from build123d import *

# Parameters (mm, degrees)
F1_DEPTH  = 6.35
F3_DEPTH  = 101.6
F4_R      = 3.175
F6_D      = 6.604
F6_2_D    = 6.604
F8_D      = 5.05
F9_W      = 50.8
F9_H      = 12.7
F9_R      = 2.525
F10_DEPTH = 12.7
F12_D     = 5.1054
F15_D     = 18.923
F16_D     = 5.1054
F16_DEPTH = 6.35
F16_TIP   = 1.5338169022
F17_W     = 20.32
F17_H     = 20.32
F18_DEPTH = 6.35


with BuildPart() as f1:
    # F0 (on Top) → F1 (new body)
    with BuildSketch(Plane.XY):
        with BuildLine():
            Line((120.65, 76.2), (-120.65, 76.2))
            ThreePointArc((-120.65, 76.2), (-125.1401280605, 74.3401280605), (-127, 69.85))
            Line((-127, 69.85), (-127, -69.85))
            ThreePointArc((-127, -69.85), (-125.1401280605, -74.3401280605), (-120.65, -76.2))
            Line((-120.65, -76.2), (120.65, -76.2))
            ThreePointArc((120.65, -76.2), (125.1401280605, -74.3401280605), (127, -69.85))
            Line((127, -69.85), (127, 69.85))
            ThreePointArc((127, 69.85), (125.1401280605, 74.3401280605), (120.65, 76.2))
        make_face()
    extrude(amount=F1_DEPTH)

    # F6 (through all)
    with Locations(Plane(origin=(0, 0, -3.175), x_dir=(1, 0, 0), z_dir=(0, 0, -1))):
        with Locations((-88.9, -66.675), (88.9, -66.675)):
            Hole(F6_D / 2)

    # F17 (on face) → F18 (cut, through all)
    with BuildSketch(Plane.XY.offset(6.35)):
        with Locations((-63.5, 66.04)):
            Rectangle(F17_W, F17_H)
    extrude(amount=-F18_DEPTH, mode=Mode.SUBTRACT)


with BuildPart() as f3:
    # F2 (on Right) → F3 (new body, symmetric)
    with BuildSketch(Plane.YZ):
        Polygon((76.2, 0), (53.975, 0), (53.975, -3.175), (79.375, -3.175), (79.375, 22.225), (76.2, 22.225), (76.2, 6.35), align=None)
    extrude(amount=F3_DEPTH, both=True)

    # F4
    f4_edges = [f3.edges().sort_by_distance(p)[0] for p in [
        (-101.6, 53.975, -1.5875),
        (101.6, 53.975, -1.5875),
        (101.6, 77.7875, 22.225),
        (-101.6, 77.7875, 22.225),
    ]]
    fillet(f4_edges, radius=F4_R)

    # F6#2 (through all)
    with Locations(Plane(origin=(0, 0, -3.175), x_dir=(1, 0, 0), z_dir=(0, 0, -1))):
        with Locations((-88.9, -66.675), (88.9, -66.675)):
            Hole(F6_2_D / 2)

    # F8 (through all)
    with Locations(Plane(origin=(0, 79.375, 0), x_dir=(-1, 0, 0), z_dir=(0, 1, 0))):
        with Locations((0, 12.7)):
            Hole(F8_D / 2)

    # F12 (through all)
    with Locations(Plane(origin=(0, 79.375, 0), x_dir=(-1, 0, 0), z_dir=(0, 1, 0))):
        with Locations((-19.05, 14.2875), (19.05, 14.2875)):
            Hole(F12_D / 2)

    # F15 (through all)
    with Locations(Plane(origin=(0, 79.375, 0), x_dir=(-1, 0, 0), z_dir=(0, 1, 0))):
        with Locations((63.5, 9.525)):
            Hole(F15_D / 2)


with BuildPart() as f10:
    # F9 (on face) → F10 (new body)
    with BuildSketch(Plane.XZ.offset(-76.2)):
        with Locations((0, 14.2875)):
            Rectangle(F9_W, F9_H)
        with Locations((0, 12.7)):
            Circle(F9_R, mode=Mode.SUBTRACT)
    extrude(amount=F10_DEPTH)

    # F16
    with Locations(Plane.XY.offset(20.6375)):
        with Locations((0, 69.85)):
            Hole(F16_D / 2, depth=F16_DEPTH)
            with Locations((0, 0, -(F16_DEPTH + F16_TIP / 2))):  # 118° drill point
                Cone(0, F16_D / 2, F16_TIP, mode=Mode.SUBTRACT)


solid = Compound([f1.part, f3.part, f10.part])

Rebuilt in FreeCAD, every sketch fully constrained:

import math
import FreeCAD as App
import Part
import Sketcher
from FreeCAD import Vector
Q = App.Units.Quantity


def edges_at(feature, points):
    """Names of the edges that pass closest to the given points."""
    edges = feature.Shape.Edges
    near = lambda p: min(range(len(edges)), key=lambda i: edges[i].distToShape(Part.Vertex(*p))[0])
    return sorted({f"Edge{near(p) + 1}" for p in points})


def add_polygon(sketch, points):
    """Adds a closed chain of lines whose ends are joined by coincident constraints."""
    first, n = sketch.GeometryCount, len(points)
    for a, b in zip(points, points[1:] + points[:1]):
        sketch.addGeometry(Part.LineSegment(App.Vector(*a, 0), App.Vector(*b, 0)), False)
    for i in range(n):
        sketch.addConstraint(Sketcher.Constraint("Coincident", first + i, 2, first + (i + 1) % n, 1))

doc = App.newDocument("Part")
body = doc.addObject("PartDesign::Body", "Body")

# Sketch on XY plane
sketch1 = doc.addObject("Sketcher::SketchObject", "Sketch")
body.addObject(sketch1)
sketch1.AttachmentSupport = (doc.XY_Plane, [""])
sketch1.MapMode = "FlatFace"
sketch1.addGeometry(Part.LineSegment(Vector(120.65, 76.2, 0), Vector(-120.65, 76.2, 0)), False)
sketch1.addGeometry(Part.ArcOfCircle(Part.Circle(Vector(-120.65, 69.85, 0), Vector(0, 0, 1), 6.35), math.radians(90), math.radians(180)), False)
sketch1.addGeometry(Part.LineSegment(Vector(-127, 69.85, 0), Vector(-127, -69.85, 0)), False)
sketch1.addGeometry(Part.ArcOfCircle(Part.Circle(Vector(-120.65, -69.85, 0), Vector(0, 0, 1), 6.35), math.radians(180), math.radians(270)), False)
sketch1.addGeometry(Part.LineSegment(Vector(-120.65, -76.2, 0), Vector(120.65, -76.2, 0)), False)
sketch1.addGeometry(Part.ArcOfCircle(Part.Circle(Vector(120.65, -69.85, 0), Vector(0, 0, 1), 6.35), math.radians(-90), math.radians(0)), False)
sketch1.addGeometry(Part.LineSegment(Vector(127, -69.85, 0), Vector(127, 69.85, 0)), False)
sketch1.addGeometry(Part.ArcOfCircle(Part.Circle(Vector(120.65, 69.85, 0), Vector(0, 0, 1), 6.35), math.radians(0), math.radians(90)), False)
sketch1.addConstraint(Sketcher.Constraint("Tangent", 0, 2, 1, 1))
sketch1.addConstraint(Sketcher.Constraint("Tangent", 1, 2, 2, 1))
sketch1.addConstraint(Sketcher.Constraint("Tangent", 2, 2, 3, 1))
sketch1.addConstraint(Sketcher.Constraint("Tangent", 3, 2, 4, 1))
sketch1.addConstraint(Sketcher.Constraint("Tangent", 4, 2, 5, 1))
sketch1.addConstraint(Sketcher.Constraint("Tangent", 5, 2, 6, 1))
sketch1.addConstraint(Sketcher.Constraint("Tangent", 6, 2, 7, 1))
sketch1.addConstraint(Sketcher.Constraint("Tangent", 7, 2, 0, 1))
sketch1.addConstraint(Sketcher.Constraint("Horizontal", 0))
sketch1.addConstraint(Sketcher.Constraint("Vertical", 2))
sketch1.addConstraint(Sketcher.Constraint("Horizontal", 4))
sketch1.addConstraint(Sketcher.Constraint("Vertical", 6))
sketch1.addConstraint(Sketcher.Constraint("Equal", 1, 3))
sketch1.addConstraint(Sketcher.Constraint("Equal", 3, 5))
sketch1.addConstraint(Sketcher.Constraint("Equal", 5, 7))
sketch1.addConstraint(Sketcher.Constraint("Symmetric", 1, 3, 5, 3, -1, 1))
sketch1.addConstraint(Sketcher.Constraint("Radius", 1, Q("0.25 in")))
sketch1.addConstraint(Sketcher.Constraint("DistanceX", 0, 2, 0, 1, Q("9.5 in")))
sketch1.addConstraint(Sketcher.Constraint("DistanceY", 2, 2, 2, 1, Q("5.5 in")))
pad1 = doc.addObject("PartDesign::Pad", "Pad")
body.addObject(pad1)
pad1.Profile = sketch1
pad1.Length = Q("0.25 in")

# Sketch on XY plane
sketch2 = doc.addObject("Sketcher::SketchObject", "Sketch001")
body.addObject(sketch2)
sketch2.AttachmentSupport = (doc.XY_Plane, [""])
sketch2.MapMode = "FlatFace"
sketch2.AttachmentOffset = App.Placement(Vector(0, 0, -0.125 * 25.4), App.Rotation())
sketch2.addGeometry(Part.Circle(Vector(-88.9, 66.675, 0), Vector(0, 0, 1), 3.302), False)
sketch2.addGeometry(Part.Circle(Vector(88.9, 66.675, 0), Vector(0, 0, 1), 3.302), False)
sketch2.addConstraint(Sketcher.Constraint("Equal", 0, 1))
sketch2.addConstraint(Sketcher.Constraint("Symmetric", 0, 3, 1, 3, -2))
sketch2.addConstraint(Sketcher.Constraint("Diameter", 0, Q("0.26 in")))
sketch2.addConstraint(Sketcher.Constraint("DistanceX", 0, 3, 1, 3, Q("7 in")))
sketch2.addConstraint(Sketcher.Constraint("DistanceY", -1, 1, 0, 3, Q("2.625 in")))
doc.recompute()
hole = doc.addObject("PartDesign::Hole", "Hole")
body.addObject(hole)
hole.Profile = sketch2
hole.ThreadType = "None"
hole.Diameter = Q("0.26 in")
hole.DepthType = "ThroughAll"
hole.Reversed = True

# Sketch on XY plane
sketch3 = doc.addObject("Sketcher::SketchObject", "Sketch002")
body.addObject(sketch3)
sketch3.AttachmentSupport = (doc.XY_Plane, [""])
sketch3.MapMode = "FlatFace"
sketch3.AttachmentOffset = App.Placement(Vector(0, 0, 0.25 * 25.4), App.Rotation())
add_polygon(sketch3, [(-73.66, 76.2), (-73.66, 55.88), (-53.34, 55.88), (-53.34, 76.2)])  # lines 0-3
sketch3.addConstraint(Sketcher.Constraint("Vertical", 0))
sketch3.addConstraint(Sketcher.Constraint("Horizontal", 1))
sketch3.addConstraint(Sketcher.Constraint("Vertical", 2))
sketch3.addConstraint(Sketcher.Constraint("Horizontal", 3))
sketch3.addConstraint(Sketcher.Constraint("Equal", 3, 0))
sketch3.addConstraint(Sketcher.Constraint("DistanceX", 1, 1, 1, 2, Q("0.8 in")))
sketch3.addConstraint(Sketcher.Constraint("DistanceY", -1, 1, 2, 2, Q("3 in")))
sketch3.addConstraint(Sketcher.Constraint("DistanceX", 0, 2, -1, 1, Q("2.9 in")))
pocket1 = doc.addObject("PartDesign::Pocket", "Pocket")
body.addObject(pocket1)
pocket1.Profile = sketch3
pocket1.Type = "ThroughAll"
body2 = doc.addObject("PartDesign::Body", "Body001")

# Sketch on YZ plane
sketch4 = doc.addObject("Sketcher::SketchObject", "Sketch003")
body2.addObject(sketch4)
sketch4.AttachmentSupport = (doc.getObject("YZ_Plane001"), [""])
sketch4.MapMode = "FlatFace"
add_polygon(sketch4, [(76.2, 0), (53.975, 0), (53.975, -3.175), (79.375, -3.175), (79.375, 22.225), (76.2, 22.225)])  # lines 0-5
sketch4.addConstraint(Sketcher.Constraint("Horizontal", 0))
sketch4.addConstraint(Sketcher.Constraint("Vertical", 1))
sketch4.addConstraint(Sketcher.Constraint("Horizontal", 2))
sketch4.addConstraint(Sketcher.Constraint("Vertical", 3))
sketch4.addConstraint(Sketcher.Constraint("Horizontal", 4))
sketch4.addConstraint(Sketcher.Constraint("Vertical", 5))
sketch4.addConstraint(Sketcher.Constraint("PointOnObject", 0, 2, -1))
sketch4.addConstraint(Sketcher.Constraint("Equal", 4, 1))
sketch4.addConstraint(Sketcher.Constraint("Equal", 2, 3))
sketch4.addConstraint(Sketcher.Constraint("DistanceX", 2, 1, 2, 2, Q("1 in")))
sketch4.addConstraint(Sketcher.Constraint("DistanceX", -1, 1, 4, 2, Q("3 in")))
sketch4.addConstraint(Sketcher.Constraint("DistanceX", 0, 2, 0, 1, Q("0.875 in")))
pad2 = doc.addObject("PartDesign::Pad", "Pad001")
body2.addObject(pad2)
pad2.Profile = sketch4
pad2.Length = Q("8 in")
pad2.Midplane = True
doc.recompute()

fillet = doc.addObject("PartDesign::Fillet", "Fillet")
body2.addObject(fillet)
fillet.Base = (pad2, edges_at(pad2, [
    (-101.6, 53.975, -1.587),
    (101.6, 53.975, -1.587),
    (101.6, 77.787, 22.225),
    (-101.6, 77.787, 22.225),
]))
fillet.Radius = Q("0.125 in")

# Sketch on XY plane
sketch5 = doc.addObject("Sketcher::SketchObject", "Sketch004")
body2.addObject(sketch5)
sketch5.AttachmentSupport = (doc.getObject("XY_Plane001"), [""])
sketch5.MapMode = "FlatFace"
sketch5.AttachmentOffset = App.Placement(Vector(0, 0, -0.125 * 25.4), App.Rotation())
sketch5.addGeometry(Part.Circle(Vector(-88.9, 66.675, 0), Vector(0, 0, 1), 3.302), False)
sketch5.addGeometry(Part.Circle(Vector(88.9, 66.675, 0), Vector(0, 0, 1), 3.302), False)
sketch5.addConstraint(Sketcher.Constraint("Equal", 0, 1))
sketch5.addConstraint(Sketcher.Constraint("Symmetric", 0, 3, 1, 3, -2))
sketch5.addConstraint(Sketcher.Constraint("Diameter", 0, Q("0.26 in")))
sketch5.addConstraint(Sketcher.Constraint("DistanceX", 0, 3, 1, 3, Q("7 in")))
sketch5.addConstraint(Sketcher.Constraint("DistanceY", -1, 1, 0, 3, Q("2.625 in")))
doc.recompute()
hole2 = doc.addObject("PartDesign::Hole", "Hole001")
body2.addObject(hole2)
hole2.Profile = sketch5
hole2.ThreadType = "None"
hole2.Diameter = Q("0.26 in")
hole2.DepthType = "ThroughAll"
hole2.Reversed = True

# Sketch on XZ plane
sketch6 = doc.addObject("Sketcher::SketchObject", "Sketch005")
body2.addObject(sketch6)
sketch6.AttachmentSupport = (doc.getObject("XZ_Plane001"), [""])
sketch6.MapMode = "FlatFace"
sketch6.AttachmentOffset = App.Placement(Vector(0, 0, -3.125 * 25.4), App.Rotation())
sketch6.addGeometry(Part.Circle(Vector(0, 12.7, 0), Vector(0, 0, 1), 2.525), False)
sketch6.addConstraint(Sketcher.Constraint("PointOnObject", 0, 3, -2))
sketch6.addConstraint(Sketcher.Constraint("DistanceY", -1, 1, 0, 3, Q("0.5 in")))
sketch6.addConstraint(Sketcher.Constraint("Diameter", 0, Q("5.05 mm")))
doc.recompute()
hole3 = doc.addObject("PartDesign::Hole", "Hole002")
body2.addObject(hole3)
hole3.Profile = sketch6
hole3.ThreadType = "None"
hole3.Diameter = 5.05
hole3.DepthType = "ThroughAll"
hole3.Reversed = True

# Sketch on XZ plane
sketch7 = doc.addObject("Sketcher::SketchObject", "Sketch006")
body2.addObject(sketch7)
sketch7.AttachmentSupport = (doc.getObject("XZ_Plane001"), [""])
sketch7.MapMode = "FlatFace"
sketch7.AttachmentOffset = App.Placement(Vector(0, 0, -3.125 * 25.4), App.Rotation())
sketch7.addGeometry(Part.Circle(Vector(19.05, 14.2875, 0), Vector(0, 0, 1), 2.5527), False)
sketch7.addGeometry(Part.Circle(Vector(-19.05, 14.2875, 0), Vector(0, 0, 1), 2.5527), False)
sketch7.addConstraint(Sketcher.Constraint("Equal", 0, 1))
sketch7.addConstraint(Sketcher.Constraint("Symmetric", 0, 3, 1, 3, -2))
sketch7.addConstraint(Sketcher.Constraint("Diameter", 0, Q("0.201 in")))
sketch7.addConstraint(Sketcher.Constraint("DistanceX", 1, 3, 0, 3, Q("1.5 in")))
sketch7.addConstraint(Sketcher.Constraint("DistanceY", -1, 1, 0, 3, Q("0.5625 in")))
doc.recompute()
hole4 = doc.addObject("PartDesign::Hole", "Hole003")
body2.addObject(hole4)
hole4.Profile = sketch7
hole4.ThreadType = "None"
hole4.Diameter = Q("0.201 in")
hole4.DepthType = "ThroughAll"
hole4.Reversed = True

# Sketch on XZ plane
sketch8 = doc.addObject("Sketcher::SketchObject", "Sketch007")
body2.addObject(sketch8)
sketch8.AttachmentSupport = (doc.getObject("XZ_Plane001"), [""])
sketch8.MapMode = "FlatFace"
sketch8.AttachmentOffset = App.Placement(Vector(0, 0, -3.125 * 25.4), App.Rotation())
sketch8.addGeometry(Part.Circle(Vector(-63.5, 9.525, 0), Vector(0, 0, 1), 9.4615), False)
sketch8.addConstraint(Sketcher.Constraint("Diameter", 0, Q("0.745 in")))
sketch8.addConstraint(Sketcher.Constraint("DistanceX", 0, 3, -1, 1, Q("2.5 in")))
sketch8.addConstraint(Sketcher.Constraint("DistanceY", -1, 1, 0, 3, Q("0.375 in")))
doc.recompute()
hole5 = doc.addObject("PartDesign::Hole", "Hole004")
body2.addObject(hole5)
hole5.Profile = sketch8
hole5.ThreadType = "None"
hole5.Diameter = Q("0.745 in")
hole5.DepthType = "ThroughAll"
hole5.Reversed = True
body3 = doc.addObject("PartDesign::Body", "Body002")

# Sketch on XZ plane
sketch9 = doc.addObject("Sketcher::SketchObject", "Sketch008")
body3.addObject(sketch9)
sketch9.AttachmentSupport = (doc.getObject("XZ_Plane002"), [""])
sketch9.MapMode = "FlatFace"
sketch9.AttachmentOffset = App.Placement(Vector(0, 0, -3 * 25.4), App.Rotation())
add_polygon(sketch9, [(-25.4, 20.6375), (-25.4, 7.9375), (25.4, 7.9375), (25.4, 20.6375)])  # lines 0-3
sketch9.addGeometry(Part.Circle(Vector(0, 12.7, 0), Vector(0, 0, 1), 2.525), False)  # 4
sketch9.addConstraint(Sketcher.Constraint("Vertical", 0))
sketch9.addConstraint(Sketcher.Constraint("Horizontal", 1))
sketch9.addConstraint(Sketcher.Constraint("Vertical", 2))
sketch9.addConstraint(Sketcher.Constraint("Horizontal", 3))
sketch9.addConstraint(Sketcher.Constraint("PointOnObject", 4, 3, -2))
sketch9.addConstraint(Sketcher.Constraint("DistanceX", 1, 1, 1, 2, Q("2 in")))
sketch9.addConstraint(Sketcher.Constraint("DistanceY", 0, 2, 0, 1, Q("0.5 in")))
sketch9.addConstraint(Sketcher.Constraint("DistanceX", 0, 2, -1, 1, Q("1 in")))
sketch9.addConstraint(Sketcher.Constraint("DistanceY", -1, 1, 4, 3, Q("0.5 in")))
sketch9.addConstraint(Sketcher.Constraint("Diameter", 4, Q("5.05 mm")))
sketch9.addConstraint(Sketcher.Constraint("DistanceY", -1, 1, 0, 2, Q("0.3125 in")))
pad3 = doc.addObject("PartDesign::Pad", "Pad002")
body3.addObject(pad3)
pad3.Profile = sketch9
pad3.Length = Q("0.5 in")

# Sketch on XY plane
sketch10 = doc.addObject("Sketcher::SketchObject", "Sketch009")
body3.addObject(sketch10)
sketch10.AttachmentSupport = (doc.getObject("XY_Plane002"), [""])
sketch10.MapMode = "FlatFace"
sketch10.AttachmentOffset = App.Placement(Vector(0, 0, 0.8125 * 25.4), App.Rotation())
sketch10.addGeometry(Part.Circle(Vector(0, 69.85, 0), Vector(0, 0, 1), 2.5527), False)
sketch10.addConstraint(Sketcher.Constraint("PointOnObject", 0, 3, -2))
sketch10.addConstraint(Sketcher.Constraint("Diameter", 0, Q("0.201 in")))
sketch10.addConstraint(Sketcher.Constraint("DistanceY", -1, 1, 0, 3, Q("2.75 in")))
doc.recompute()
hole6 = doc.addObject("PartDesign::Hole", "Hole005")
body3.addObject(hole6)
hole6.Profile = sketch10
hole6.ThreadType = "None"
hole6.Diameter = Q("0.201 in")
hole6.DepthType = "Dimension"
hole6.Depth = Q("0.25 in")
hole6.DrillPoint = "Angled"
hole6.DrillPointAngle = 118

doc.recompute()
